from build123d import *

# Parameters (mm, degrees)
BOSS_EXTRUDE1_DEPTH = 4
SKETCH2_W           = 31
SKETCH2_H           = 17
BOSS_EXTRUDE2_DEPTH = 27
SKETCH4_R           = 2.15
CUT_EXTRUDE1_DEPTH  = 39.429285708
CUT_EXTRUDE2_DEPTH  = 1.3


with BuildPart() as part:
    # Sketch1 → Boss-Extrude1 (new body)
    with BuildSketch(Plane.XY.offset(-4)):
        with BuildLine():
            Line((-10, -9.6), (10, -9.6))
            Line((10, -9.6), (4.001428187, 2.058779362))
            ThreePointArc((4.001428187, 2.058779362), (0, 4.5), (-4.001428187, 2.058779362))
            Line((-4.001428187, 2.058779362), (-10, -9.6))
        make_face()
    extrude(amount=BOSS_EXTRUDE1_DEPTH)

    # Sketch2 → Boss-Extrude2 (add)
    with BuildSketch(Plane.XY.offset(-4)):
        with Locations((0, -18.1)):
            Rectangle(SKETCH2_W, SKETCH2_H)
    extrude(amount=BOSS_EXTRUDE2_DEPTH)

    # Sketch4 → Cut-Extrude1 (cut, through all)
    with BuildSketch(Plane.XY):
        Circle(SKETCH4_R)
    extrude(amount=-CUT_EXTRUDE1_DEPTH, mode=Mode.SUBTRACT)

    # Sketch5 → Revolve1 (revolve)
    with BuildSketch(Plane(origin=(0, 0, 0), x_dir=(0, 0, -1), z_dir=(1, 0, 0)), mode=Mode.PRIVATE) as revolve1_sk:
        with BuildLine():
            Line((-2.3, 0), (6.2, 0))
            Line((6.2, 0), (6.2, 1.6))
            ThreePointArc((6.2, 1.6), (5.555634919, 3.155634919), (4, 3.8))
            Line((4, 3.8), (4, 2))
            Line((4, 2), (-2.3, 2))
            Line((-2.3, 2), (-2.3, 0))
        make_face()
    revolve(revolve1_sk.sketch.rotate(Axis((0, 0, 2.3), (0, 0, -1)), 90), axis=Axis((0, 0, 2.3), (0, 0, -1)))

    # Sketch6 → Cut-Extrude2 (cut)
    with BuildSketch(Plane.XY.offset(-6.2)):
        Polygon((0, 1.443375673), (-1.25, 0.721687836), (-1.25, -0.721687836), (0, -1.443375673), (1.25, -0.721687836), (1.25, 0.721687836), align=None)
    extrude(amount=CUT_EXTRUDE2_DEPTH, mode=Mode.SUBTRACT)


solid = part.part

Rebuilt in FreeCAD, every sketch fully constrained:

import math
import FreeCAD as App
import Part
import Sketcher

V = App.Vector
Q = App.Units.Quantity


def add_polygon(sketch, points):
    """Adds a closed chain of lines whose ends are joined by coincident constraints."""
    first, n = sketch.GeometryCount, len(points)
    for a, b in zip(points, points[1:] + points[:1]):
        sketch.addGeometry(Part.LineSegment(App.Vector(*a, 0), App.Vector(*b, 0)), False)
    for i in range(n):
        sketch.addConstraint(Sketcher.Constraint("Coincident", first + i, 2, first + (i + 1) % n, 1))

doc = App.newDocument("Part")
params = doc.addObject("Spreadsheet::Sheet", "Params")
for row, (alias, value) in enumerate([
    ("sketch1_radius", "4.5 mm"),
    ("sketch1_width", "20 mm"),
    ("pad1_length", "4 mm"),
    ("sketch2_width", "31 mm"),
    ("sketch2_height", "17 mm"),
    ("pad2_length", "27 mm"),
    ("sketch3_diameter", "4.3 mm"),
    ("sketch4_radius", "2.2 mm"),
    ("sketch4_width", "2 mm"),
    ("sketch4_width2", "1.6 mm"),
    ("sketch4_height", "8.5 mm"),
    ("sketch4_height2", "6.3 mm"),
    ("revolution_angle", "360 deg"),
    ("pocket2_length", "1.3 mm"),
], start=1):
    params.set(f"A{row}", alias)
    params.set(f"B{row}", "=" + value)
    params.setAlias(f"B{row}", alias)

body = doc.addObject("PartDesign::Body", "Body")

sketch1 = doc.addObject("Sketcher::SketchObject", "Sketch")
body.addObject(sketch1)
sketch1.AttachmentSupport = (doc.XY_Plane, [""])
sketch1.MapMode = "FlatFace"
sketch1.AttachmentOffset = App.Placement(V(0, 0, -4), App.Rotation())
sketch1.addGeometry(Part.LineSegment(V(-10, -9.6, 0), V(10, -9.6, 0)), False)
sketch1.addGeometry(Part.LineSegment(V(10, -9.6, 0), V(4, 2.1, 0)), False)
sketch1.addGeometry(Part.ArcOfCircle(Part.Circle(V(0, 0, 0), V(0, 0, 1), 4.5), math.radians(27), math.radians(153)), False)
sketch1.addGeometry(Part.LineSegment(V(-4, 2.1, 0), V(-10, -9.6, 0)), False)
sketch1.addConstraint(Sketcher.Constraint("Coincident", 0, 2, 1, 1))
sketch1.addConstraint(Sketcher.Constraint("Tangent", 1, 2, 2, 1))
sketch1.addConstraint(Sketcher.Constraint("Tangent", 2, 2, 3, 1))
sketch1.addConstraint(Sketcher.Constraint("Coincident", 3, 2, 0, 1))
sketch1.addConstraint(Sketcher.Constraint("Horizontal", 0))
sketch1.addConstraint(Sketcher.Constraint("Coincident", 2, 3, -1, 1))
sketch1.addConstraint(Sketcher.Constraint("Horizontal", 1, 2, 2, 2))
sketch1.addConstraint(Sketcher.Constraint("Radius", 2, 4.5))
sketch1.addConstraint(Sketcher.Constraint("DistanceX", 0, 1, 0, 2, 20.0))
sketch1.addConstraint(Sketcher.Constraint("DistanceY", 0, 2, -1, 1, 9.6))
sketch1.setExpression("Constraints[7]", "Params.sketch1_radius")
sketch1.setExpression("Constraints[8]", "Params.sketch1_width")
pad1 = doc.addObject("PartDesign::Pad", "Pad")
body.addObject(pad1)
pad1.Profile = sketch1
pad1.setExpression("Length", "Params.pad1_length")

sketch2 = doc.addObject("Sketcher::SketchObject", "Sketch001")
body.addObject(sketch2)
sketch2.AttachmentSupport = (doc.XY_Plane, [""])
sketch2.MapMode = "FlatFace"
sketch2.AttachmentOffset = App.Placement(V(0, 0, -4), App.Rotation())
add_polygon(sketch2, [(-16, -10), (-16, -27), (16, -27), (16, -10)])
sketch2.addConstraint(Sketcher.Constraint("Vertical", 0))
sketch2.addConstraint(Sketcher.Constraint("Horizontal", 1))
sketch2.addConstraint(Sketcher.Constraint("Vertical", 2))
sketch2.addConstraint(Sketcher.Constraint("Horizontal", 3))
sketch2.addConstraint(Sketcher.Constraint("DistanceX", 1, 1, 1, 2, 31.0))
sketch2.addConstraint(Sketcher.Constraint("DistanceY", 0, 2, 0, 1, 17.0))
sketch2.addConstraint(Sketcher.Constraint("DistanceX", 0, 2, -1, 1, 15.5))
sketch2.addConstraint(Sketcher.Constraint("DistanceY", 0, 2, -1, 1, 26.6))
sketch2.setExpression("Constraints[8]", "Params.sketch2_width")
sketch2.setExpression("Constraints[9]", "Params.sketch2_height")
pad2 = doc.addObject("PartDesign::Pad", "Pad001")
body.addObject(pad2)
pad2.Profile = sketch2
pad2.setExpression("Length", "Params.pad2_length")

sketch3 = doc.addObject("Sketcher::SketchObject", "Sketch002")
body.addObject(sketch3)
sketch3.AttachmentSupport = (doc.XY_Plane, [""])
sketch3.MapMode = "FlatFace"
sketch3.addGeometry(Part.Circle(V(0, 0, 0), V(0, 0, 1), 2.1), False)
sketch3.addConstraint(Sketcher.Constraint("Coincident", 0, 3, -1, 1))
sketch3.addConstraint(Sketcher.Constraint("Diameter", 0, 4.3))
sketch3.setExpression("Constraints[1]", "Params.sketch3_diameter")
pocket1 = doc.addObject("PartDesign::Pocket", "Pocket")
body.addObject(pocket1)
pocket1.Profile = sketch3
pocket1.Type = "ThroughAll"

sketch4 = doc.addObject("Sketcher::SketchObject", "Sketch003")
body.addObject(sketch4)
sketch4.AttachmentSupport = (doc.YZ_Plane, [""])
sketch4.MapMode = "FlatFace"
sketch4.addGeometry(Part.LineSegment(V(0, 2.3, 0), V(0, -6.2, 0)), False)
sketch4.addGeometry(Part.LineSegment(V(0, -6.2, 0), V(1.6, -6.2, 0)), False)
sketch4.addGeometry(Part.ArcOfCircle(Part.Circle(V(1.6, -4, 0), V(0, 0, 1), 2.2), math.radians(-90), math.radians(0)), False)
sketch4.addGeometry(Part.LineSegment(V(3.8, -4, 0), V(2, -4, 0)), False)
sketch4.addGeometry(Part.LineSegment(V(2, -4, 0), V(2, 2.3, 0)), False)
sketch4.addGeometry(Part.LineSegment(V(2, 2.3, 0), V(0, 2.3, 0)), False)
sketch4.addConstraint(Sketcher.Constraint("Coincident", 0, 2, 1, 1))
sketch4.addConstraint(Sketcher.Constraint("Tangent", 1, 2, 2, 1))
sketch4.addConstraint(Sketcher.Constraint("Coincident", 2, 2, 3, 1))
sketch4.addConstraint(Sketcher.Constraint("Coincident", 3, 2, 4, 1))
sketch4.addConstraint(Sketcher.Constraint("Coincident", 4, 2, 5, 1))
sketch4.addConstraint(Sketcher.Constraint("Coincident", 5, 2, 0, 1))
sketch4.addConstraint(Sketcher.Constraint("Vertical", 0))
sketch4.addConstraint(Sketcher.Constraint("Horizontal", 1))
sketch4.addConstraint(Sketcher.Constraint("Horizontal", 3))
sketch4.addConstraint(Sketcher.Constraint("Vertical", 4))
sketch4.addConstraint(Sketcher.Constraint("Horizontal", 5))
sketch4.addConstraint(Sketcher.Constraint("PointOnObject", 0, 2, -2))
sketch4.addConstraint(Sketcher.Constraint("Radius", 2, 2.2))
sketch4.addConstraint(Sketcher.Constraint("DistanceX", 5, 2, 5, 1, 2.0))
sketch4.addConstraint(Sketcher.Constraint("DistanceX", 1, 1, 1, 2, 1.6))
sketch4.addConstraint(Sketcher.Constraint("DistanceY", 0, 2, 0, 1, 8.5))
sketch4.addConstraint(Sketcher.Constraint("DistanceY", 4, 1, 4, 2, 6.3))
sketch4.addConstraint(Sketcher.Constraint("DistanceY", 2, 3, -1, 1, 4.0))
sketch4.setExpression("Constraints[12]", "Params.sketch4_radius")
sketch4.setExpression("Constraints[13]", "Params.sketch4_width")
sketch4.setExpression("Constraints[14]", "Params.sketch4_width2")
sketch4.setExpression("Constraints[15]", "Params.sketch4_height")
sketch4.setExpression("Constraints[16]", "Params.sketch4_height2")
revolution = doc.addObject("PartDesign::Revolution", "Revolution")
body.addObject(revolution)
revolution.Profile = sketch4
revolution.ReferenceAxis = (sketch4, ["V_Axis"])
revolution.setExpression("Angle", "Params.revolution_angle")

sketch5 = doc.addObject("Sketcher::SketchObject", "Sketch004")
body.addObject(sketch5)
sketch5.AttachmentSupport = (doc.XY_Plane, [""])
sketch5.MapMode = "FlatFace"
sketch5.AttachmentOffset = App.Placement(V(0, 0, -6.2), App.Rotation())
add_polygon(sketch5, [(0, 1.4), (-1.2, 0.7), (-1.2, -0.7), (0, -1.4), (1.2, -0.7), (1.2, 0.7)])
sketch5.addConstraint(Sketcher.Constraint("Vertical", 1))
sketch5.addConstraint(Sketcher.Constraint("Vertical", 4))
sketch5.addConstraint(Sketcher.Constraint("Symmetric", 0, 2, 3, 2, -1, 1))
sketch5.addConstraint(Sketcher.Constraint("Symmetric", 2, 2, 5, 2, -1, 1))
sketch5.addConstraint(Sketcher.Constraint("PointOnObject", 2, 2, -2))
sketch5.addConstraint(Sketcher.Constraint("Parallel", 2, 5))
sketch5.addConstraint(Sketcher.Constraint("Horizontal", 1, 2, 3, 2))
sketch5.addConstraint(Sketcher.Constraint("Angle", 0, Q("-150 deg")))
sketch5.addConstraint(Sketcher.Constraint("DistanceX", 1, 2, 3, 2, 2.5))
sketch5.addConstraint(Sketcher.Constraint("DistanceY", 1, 2, 1, 1, 1.443376))
pocket2 = doc.addObject("PartDesign::Pocket", "Pocket001")
body.addObject(pocket2)
pocket2.Profile = sketch5
pocket2.setExpression("Length", "Params.pocket2_length")
pocket2.Reversed = True

doc.recompute()
